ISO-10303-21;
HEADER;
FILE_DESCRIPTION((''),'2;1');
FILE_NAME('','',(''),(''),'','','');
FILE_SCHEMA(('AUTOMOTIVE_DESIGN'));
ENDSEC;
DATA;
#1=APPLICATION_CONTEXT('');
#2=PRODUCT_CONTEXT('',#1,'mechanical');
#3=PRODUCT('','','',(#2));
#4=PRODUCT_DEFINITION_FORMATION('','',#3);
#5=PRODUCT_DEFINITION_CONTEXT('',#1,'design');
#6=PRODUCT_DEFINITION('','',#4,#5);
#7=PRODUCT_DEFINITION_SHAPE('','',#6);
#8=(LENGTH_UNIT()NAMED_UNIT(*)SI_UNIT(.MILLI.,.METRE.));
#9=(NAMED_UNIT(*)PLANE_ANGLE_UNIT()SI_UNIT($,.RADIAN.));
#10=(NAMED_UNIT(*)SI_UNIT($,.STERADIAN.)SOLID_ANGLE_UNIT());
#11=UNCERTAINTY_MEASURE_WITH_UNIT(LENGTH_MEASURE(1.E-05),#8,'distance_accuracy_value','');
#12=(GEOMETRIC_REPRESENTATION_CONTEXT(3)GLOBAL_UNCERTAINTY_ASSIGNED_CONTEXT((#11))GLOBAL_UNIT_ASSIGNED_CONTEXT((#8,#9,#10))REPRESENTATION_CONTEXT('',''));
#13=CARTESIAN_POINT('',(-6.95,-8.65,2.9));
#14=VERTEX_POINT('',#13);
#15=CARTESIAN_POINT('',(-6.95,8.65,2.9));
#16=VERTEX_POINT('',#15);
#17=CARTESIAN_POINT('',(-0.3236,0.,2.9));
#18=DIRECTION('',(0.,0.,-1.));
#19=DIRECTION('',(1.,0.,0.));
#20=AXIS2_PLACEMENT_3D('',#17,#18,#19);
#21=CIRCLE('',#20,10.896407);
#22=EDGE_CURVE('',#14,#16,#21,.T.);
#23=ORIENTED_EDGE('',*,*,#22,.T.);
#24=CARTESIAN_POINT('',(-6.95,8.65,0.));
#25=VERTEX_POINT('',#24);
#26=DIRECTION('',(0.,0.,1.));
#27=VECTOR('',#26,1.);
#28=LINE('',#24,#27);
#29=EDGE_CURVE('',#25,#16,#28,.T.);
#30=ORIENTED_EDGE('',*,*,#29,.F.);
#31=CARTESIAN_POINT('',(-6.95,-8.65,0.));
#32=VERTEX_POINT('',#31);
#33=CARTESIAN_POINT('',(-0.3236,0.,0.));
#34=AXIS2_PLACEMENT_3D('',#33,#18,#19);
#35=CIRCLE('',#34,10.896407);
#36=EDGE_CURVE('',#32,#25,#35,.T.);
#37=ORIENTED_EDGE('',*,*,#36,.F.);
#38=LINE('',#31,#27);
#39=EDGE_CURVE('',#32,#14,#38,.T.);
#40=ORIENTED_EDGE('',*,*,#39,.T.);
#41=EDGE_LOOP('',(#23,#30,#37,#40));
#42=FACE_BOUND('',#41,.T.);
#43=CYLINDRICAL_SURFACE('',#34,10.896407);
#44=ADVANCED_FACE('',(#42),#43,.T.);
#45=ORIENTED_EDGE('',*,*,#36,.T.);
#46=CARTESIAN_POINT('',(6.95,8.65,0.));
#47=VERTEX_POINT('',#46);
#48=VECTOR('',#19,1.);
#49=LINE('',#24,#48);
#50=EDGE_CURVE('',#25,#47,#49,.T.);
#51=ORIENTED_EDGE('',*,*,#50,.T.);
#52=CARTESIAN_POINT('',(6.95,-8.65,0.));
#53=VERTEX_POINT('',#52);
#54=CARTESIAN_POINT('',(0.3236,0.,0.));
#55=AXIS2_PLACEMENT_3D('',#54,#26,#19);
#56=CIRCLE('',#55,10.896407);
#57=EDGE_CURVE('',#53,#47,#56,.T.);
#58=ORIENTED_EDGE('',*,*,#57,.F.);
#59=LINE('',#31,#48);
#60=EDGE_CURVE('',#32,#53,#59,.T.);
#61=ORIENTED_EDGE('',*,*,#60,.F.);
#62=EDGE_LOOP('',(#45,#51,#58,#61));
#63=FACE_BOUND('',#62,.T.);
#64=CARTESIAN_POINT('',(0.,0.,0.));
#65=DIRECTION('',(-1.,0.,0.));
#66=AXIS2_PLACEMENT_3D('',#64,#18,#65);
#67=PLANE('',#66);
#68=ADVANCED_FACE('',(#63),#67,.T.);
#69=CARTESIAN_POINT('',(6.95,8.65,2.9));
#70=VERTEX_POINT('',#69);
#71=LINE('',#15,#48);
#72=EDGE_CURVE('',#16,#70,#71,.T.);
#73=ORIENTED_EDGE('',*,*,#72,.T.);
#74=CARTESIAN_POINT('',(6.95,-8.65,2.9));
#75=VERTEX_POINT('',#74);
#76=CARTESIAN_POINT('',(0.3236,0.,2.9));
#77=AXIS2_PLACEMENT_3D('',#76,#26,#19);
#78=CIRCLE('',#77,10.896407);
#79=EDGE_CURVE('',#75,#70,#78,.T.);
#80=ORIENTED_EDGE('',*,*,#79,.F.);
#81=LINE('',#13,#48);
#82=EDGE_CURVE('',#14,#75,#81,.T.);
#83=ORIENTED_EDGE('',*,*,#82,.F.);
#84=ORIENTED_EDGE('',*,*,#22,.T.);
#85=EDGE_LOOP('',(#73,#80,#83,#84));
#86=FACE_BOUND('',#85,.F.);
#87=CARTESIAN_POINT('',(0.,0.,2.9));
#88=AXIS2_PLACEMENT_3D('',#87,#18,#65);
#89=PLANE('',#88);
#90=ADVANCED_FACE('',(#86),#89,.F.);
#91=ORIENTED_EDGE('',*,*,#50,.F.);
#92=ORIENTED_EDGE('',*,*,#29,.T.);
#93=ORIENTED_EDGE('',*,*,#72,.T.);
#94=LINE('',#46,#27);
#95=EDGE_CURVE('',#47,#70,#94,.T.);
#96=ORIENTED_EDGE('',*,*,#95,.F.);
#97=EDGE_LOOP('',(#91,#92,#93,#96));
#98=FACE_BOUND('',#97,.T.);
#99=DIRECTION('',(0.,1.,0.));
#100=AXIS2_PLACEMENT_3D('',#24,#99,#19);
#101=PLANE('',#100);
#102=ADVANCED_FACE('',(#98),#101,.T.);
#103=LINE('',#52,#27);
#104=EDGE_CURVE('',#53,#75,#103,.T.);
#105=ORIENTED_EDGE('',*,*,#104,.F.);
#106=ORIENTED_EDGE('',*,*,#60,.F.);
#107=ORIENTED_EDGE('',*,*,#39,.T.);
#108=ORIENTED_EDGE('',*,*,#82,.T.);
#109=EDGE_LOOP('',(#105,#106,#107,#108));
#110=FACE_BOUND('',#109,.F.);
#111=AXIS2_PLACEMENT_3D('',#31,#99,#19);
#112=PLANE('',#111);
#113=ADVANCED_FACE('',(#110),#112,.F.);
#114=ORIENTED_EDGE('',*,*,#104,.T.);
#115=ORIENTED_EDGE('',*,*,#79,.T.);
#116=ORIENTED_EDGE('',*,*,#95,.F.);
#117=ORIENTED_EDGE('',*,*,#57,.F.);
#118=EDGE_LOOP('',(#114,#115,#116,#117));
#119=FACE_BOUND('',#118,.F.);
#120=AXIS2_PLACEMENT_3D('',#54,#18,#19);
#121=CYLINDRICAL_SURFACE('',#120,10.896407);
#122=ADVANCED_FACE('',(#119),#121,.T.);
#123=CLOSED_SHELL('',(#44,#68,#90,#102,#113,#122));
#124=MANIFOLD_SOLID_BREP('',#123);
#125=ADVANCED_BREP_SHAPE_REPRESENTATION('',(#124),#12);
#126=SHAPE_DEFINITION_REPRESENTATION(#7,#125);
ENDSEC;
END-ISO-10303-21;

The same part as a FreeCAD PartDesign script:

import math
import FreeCAD as App
import Part
import Sketcher
Q = App.Units.Quantity

doc = App.newDocument("Part")
body = doc.addObject("PartDesign::Body", "Body")

# Sketch on XY plane
sketch1 = body.newObject("Sketcher::SketchObject", "Sketch")
sketch1.AttachmentSupport = (doc.getObject("XY_Plane"), [""])
sketch1.MapMode = "FlatFace"
sketch1.addGeometry(Part.ArcOfCircle(Part.Circle(App.Vector(0, 0, 0), App.Vector(0, 0, 1), 11), math.radians(127), math.radians(233)), False)
sketch1.addGeometry(Part.LineSegment(App.Vector(-7, -9, 0), App.Vector(7, -9, 0)), False)
sketch1.addGeometry(Part.ArcOfCircle(Part.Circle(App.Vector(0, 0, 0), App.Vector(0, 0, 1), 11), math.radians(-53), math.radians(53)), False)
sketch1.addGeometry(Part.LineSegment(App.Vector(7, 9, 0), App.Vector(-7, 9, 0)), False)
sketch1.addConstraint(Sketcher.Constraint("Coincident", 0, 2, 1, 1))
sketch1.addConstraint(Sketcher.Constraint("Coincident", 1, 2, 2, 1))
sketch1.addConstraint(Sketcher.Constraint("Coincident", 2, 2, 3, 1))
sketch1.addConstraint(Sketcher.Constraint("Coincident", 3, 2, 0, 1))
sketch1.addConstraint(Sketcher.Constraint("Horizontal", 1))
sketch1.addConstraint(Sketcher.Constraint("Horizontal", 3))
sketch1.addConstraint(Sketcher.Constraint("Equal", 0, 2))
sketch1.addConstraint(Sketcher.Constraint("Symmetric", 0, 3, 2, 3, -1, 1))
sketch1.addConstraint(Sketcher.Constraint("Symmetric", 1, 2, 2, 2, -1))
sketch1.addConstraint(Sketcher.Constraint("DistanceX", 1, 1, 1, 2, Q("13.9 mm")))
sketch1.addConstraint(Sketcher.Constraint("Radius", 0, Q("10.8964 mm")))
sketch1.addConstraint(Sketcher.Constraint("DistanceY", 1, 2, 2, 2, Q("17.3 mm")))
pad1 = body.newObject("PartDesign::Pad", "Pad")
pad1.Profile = sketch1
pad1.Length = 2.9

doc.recompute()
